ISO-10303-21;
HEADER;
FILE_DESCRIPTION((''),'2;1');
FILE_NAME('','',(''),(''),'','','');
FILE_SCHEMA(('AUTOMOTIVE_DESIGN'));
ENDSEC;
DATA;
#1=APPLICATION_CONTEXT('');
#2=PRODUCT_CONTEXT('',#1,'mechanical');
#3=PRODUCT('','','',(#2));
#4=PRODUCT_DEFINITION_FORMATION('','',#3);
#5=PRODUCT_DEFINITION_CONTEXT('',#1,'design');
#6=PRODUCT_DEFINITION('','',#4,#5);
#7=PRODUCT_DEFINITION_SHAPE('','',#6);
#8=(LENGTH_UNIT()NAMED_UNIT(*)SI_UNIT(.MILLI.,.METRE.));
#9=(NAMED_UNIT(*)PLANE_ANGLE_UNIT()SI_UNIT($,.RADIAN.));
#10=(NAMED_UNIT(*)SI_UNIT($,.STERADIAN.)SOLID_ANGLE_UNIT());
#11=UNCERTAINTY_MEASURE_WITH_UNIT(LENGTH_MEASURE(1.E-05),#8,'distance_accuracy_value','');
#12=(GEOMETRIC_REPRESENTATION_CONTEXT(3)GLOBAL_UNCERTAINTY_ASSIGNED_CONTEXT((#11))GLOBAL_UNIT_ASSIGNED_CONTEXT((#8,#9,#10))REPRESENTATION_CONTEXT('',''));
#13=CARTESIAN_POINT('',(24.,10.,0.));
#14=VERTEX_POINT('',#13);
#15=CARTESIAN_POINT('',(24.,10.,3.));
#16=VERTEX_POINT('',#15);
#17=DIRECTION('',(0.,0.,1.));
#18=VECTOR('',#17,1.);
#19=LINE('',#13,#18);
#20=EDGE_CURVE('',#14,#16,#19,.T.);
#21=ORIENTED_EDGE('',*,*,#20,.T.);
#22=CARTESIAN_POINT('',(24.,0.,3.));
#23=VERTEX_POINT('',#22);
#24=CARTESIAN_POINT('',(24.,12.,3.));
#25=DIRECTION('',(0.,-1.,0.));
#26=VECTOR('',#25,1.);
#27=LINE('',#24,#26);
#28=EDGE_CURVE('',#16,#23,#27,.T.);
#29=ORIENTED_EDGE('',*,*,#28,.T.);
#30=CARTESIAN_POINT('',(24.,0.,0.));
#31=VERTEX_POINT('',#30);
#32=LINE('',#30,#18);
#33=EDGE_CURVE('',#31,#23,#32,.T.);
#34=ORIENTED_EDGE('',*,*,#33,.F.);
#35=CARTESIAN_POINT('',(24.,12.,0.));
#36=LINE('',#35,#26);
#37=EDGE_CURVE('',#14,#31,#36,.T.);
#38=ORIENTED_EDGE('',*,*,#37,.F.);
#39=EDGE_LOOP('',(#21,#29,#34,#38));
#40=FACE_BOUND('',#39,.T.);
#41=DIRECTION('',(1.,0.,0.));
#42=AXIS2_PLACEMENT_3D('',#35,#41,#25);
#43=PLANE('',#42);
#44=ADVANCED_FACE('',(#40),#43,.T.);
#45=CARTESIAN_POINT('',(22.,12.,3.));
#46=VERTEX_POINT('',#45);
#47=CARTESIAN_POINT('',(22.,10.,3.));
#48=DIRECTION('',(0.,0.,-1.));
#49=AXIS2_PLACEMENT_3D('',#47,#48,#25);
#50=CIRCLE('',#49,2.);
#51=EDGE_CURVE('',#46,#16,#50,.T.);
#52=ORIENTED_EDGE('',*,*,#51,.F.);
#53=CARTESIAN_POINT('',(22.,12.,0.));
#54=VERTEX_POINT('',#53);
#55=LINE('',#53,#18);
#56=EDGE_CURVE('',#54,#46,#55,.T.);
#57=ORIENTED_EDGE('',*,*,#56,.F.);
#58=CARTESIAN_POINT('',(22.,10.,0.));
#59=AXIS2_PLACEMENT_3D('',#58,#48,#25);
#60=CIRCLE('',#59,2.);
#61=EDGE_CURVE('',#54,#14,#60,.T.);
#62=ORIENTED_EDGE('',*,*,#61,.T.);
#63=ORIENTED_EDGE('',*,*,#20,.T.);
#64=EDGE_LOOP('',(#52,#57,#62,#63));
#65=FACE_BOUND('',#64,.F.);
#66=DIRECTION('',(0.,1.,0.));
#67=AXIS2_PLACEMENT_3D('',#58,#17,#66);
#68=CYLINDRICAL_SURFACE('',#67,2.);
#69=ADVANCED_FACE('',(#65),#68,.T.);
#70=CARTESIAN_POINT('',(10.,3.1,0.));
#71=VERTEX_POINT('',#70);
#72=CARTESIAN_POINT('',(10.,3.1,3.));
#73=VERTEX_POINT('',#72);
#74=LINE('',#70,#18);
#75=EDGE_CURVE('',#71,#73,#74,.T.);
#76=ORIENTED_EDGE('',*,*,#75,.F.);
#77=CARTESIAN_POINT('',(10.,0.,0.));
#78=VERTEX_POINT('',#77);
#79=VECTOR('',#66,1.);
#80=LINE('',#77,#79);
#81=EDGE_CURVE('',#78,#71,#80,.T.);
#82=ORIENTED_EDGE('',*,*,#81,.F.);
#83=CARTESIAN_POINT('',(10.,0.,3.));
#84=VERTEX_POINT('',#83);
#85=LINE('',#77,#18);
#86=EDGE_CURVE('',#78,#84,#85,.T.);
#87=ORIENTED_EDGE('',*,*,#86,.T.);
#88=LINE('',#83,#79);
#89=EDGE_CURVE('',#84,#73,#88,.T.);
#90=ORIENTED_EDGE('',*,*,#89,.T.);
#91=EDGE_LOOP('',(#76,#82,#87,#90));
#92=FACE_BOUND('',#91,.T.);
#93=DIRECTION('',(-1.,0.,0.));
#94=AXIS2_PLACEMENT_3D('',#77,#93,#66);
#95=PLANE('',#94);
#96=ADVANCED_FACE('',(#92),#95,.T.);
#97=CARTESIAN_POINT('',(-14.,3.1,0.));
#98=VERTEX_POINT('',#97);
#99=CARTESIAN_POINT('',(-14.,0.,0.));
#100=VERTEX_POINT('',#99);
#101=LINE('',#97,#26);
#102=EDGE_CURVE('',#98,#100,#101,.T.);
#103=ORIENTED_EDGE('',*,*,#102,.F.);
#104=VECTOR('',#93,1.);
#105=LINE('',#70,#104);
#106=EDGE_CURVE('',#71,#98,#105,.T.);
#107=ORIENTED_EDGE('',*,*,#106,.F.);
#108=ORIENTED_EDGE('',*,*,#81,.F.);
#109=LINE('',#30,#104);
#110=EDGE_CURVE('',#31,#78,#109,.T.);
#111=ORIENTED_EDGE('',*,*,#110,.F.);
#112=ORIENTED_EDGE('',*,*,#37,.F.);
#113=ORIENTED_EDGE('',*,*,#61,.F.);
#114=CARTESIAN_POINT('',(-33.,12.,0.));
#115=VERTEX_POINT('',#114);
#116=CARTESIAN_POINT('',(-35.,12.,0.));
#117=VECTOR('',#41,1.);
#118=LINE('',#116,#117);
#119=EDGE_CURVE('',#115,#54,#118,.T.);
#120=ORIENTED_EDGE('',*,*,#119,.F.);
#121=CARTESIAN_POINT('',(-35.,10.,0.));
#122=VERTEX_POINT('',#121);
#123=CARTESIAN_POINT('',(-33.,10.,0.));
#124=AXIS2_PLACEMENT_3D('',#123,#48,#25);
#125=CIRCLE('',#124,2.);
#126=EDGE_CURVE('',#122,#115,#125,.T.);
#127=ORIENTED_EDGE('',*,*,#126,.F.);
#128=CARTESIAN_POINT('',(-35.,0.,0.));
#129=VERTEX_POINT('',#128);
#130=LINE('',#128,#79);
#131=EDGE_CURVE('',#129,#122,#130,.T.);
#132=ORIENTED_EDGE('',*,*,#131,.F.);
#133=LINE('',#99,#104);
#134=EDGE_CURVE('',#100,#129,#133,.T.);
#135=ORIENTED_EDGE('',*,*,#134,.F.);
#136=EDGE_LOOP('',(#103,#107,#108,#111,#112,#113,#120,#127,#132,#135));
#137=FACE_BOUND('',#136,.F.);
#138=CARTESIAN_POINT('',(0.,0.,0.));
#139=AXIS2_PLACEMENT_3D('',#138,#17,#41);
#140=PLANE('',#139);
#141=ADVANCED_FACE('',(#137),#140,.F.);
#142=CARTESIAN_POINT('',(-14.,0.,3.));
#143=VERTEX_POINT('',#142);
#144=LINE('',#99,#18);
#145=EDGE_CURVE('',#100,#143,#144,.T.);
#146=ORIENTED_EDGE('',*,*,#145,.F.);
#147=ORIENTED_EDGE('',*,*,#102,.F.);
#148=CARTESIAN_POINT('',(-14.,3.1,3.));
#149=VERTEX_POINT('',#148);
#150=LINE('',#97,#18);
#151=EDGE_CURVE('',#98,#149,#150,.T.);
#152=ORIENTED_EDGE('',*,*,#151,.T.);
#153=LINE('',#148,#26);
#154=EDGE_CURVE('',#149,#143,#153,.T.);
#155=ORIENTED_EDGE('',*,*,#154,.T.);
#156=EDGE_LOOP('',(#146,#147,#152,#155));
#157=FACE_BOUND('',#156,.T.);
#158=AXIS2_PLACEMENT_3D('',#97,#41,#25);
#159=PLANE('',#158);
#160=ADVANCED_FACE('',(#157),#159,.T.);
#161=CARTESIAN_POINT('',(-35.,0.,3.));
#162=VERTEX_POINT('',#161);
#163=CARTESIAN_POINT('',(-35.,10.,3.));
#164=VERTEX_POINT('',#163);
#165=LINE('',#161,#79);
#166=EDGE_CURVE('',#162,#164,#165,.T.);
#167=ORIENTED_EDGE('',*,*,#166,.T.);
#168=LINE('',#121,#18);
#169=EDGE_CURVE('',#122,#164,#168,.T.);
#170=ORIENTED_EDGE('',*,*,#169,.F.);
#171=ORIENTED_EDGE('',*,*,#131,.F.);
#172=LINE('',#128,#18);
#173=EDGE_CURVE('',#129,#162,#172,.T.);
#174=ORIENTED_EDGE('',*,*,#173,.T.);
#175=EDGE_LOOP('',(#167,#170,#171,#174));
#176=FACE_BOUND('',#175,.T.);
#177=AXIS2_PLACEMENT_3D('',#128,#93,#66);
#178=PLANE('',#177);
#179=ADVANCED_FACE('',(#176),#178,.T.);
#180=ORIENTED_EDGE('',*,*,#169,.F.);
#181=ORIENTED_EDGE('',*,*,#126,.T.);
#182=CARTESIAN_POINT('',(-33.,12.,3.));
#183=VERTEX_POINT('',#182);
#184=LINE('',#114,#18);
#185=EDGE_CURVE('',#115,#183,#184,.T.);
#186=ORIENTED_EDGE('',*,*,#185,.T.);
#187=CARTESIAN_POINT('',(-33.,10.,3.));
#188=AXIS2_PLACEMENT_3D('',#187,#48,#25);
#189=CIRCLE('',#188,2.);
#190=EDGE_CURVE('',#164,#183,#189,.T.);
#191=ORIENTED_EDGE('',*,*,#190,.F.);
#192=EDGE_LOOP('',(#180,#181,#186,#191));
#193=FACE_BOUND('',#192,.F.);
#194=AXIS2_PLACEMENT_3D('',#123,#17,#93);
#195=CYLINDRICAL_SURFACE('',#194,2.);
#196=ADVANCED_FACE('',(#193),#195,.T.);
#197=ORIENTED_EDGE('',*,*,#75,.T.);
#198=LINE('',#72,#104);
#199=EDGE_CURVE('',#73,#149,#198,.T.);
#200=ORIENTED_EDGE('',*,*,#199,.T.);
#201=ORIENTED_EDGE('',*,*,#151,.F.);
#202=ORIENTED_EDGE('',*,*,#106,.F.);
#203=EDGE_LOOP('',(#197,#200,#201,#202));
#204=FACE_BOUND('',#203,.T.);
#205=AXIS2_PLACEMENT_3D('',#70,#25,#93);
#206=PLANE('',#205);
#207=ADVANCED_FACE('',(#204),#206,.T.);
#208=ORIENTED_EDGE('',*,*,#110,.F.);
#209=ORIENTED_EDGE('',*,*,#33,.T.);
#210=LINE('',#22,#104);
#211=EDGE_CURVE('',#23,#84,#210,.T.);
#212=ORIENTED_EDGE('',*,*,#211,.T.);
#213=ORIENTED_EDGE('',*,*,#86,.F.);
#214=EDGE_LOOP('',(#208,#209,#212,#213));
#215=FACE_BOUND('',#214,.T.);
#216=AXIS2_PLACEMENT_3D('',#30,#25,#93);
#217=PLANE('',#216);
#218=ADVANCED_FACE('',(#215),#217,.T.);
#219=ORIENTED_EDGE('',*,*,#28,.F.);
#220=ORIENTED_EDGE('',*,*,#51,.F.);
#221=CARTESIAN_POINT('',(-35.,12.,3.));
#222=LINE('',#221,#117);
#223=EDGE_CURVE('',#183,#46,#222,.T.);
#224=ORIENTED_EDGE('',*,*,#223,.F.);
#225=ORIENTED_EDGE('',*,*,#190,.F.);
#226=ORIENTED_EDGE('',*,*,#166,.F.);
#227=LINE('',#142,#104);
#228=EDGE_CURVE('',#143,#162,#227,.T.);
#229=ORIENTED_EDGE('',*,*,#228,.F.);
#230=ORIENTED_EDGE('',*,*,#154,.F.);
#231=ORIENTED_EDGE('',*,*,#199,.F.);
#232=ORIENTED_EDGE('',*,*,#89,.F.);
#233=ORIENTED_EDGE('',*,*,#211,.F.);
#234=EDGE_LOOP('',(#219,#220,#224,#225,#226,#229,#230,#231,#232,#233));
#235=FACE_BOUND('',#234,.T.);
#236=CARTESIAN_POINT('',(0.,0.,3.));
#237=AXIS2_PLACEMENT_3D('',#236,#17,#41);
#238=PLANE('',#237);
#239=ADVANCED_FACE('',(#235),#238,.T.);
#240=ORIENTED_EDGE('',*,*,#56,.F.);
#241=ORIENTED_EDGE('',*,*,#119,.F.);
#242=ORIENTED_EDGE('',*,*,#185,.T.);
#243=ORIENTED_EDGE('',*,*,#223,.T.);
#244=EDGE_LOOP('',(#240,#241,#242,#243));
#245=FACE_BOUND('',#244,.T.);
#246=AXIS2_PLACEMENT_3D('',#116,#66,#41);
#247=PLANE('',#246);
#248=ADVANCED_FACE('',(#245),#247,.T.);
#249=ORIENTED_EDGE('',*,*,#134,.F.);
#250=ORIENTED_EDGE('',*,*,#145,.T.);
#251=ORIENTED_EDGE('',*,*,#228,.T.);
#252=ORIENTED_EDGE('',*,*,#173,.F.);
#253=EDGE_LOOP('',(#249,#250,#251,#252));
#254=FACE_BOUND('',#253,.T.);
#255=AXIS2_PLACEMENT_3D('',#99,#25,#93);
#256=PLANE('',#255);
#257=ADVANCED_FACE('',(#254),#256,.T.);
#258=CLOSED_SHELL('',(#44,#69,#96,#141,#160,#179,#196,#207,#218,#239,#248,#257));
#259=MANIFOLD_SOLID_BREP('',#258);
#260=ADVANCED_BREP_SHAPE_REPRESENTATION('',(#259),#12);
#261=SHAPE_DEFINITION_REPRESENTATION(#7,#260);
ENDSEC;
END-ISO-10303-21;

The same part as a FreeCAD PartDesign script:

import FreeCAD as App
import Part
import Sketcher

V = App.Vector
Q = App.Units.Quantity


def edges_at(feature, points):
    """Names of the edges that pass closest to the given points."""
    edges = feature.Shape.Edges
    near = lambda p: min(range(len(edges)), key=lambda i: edges[i].distToShape(Part.Vertex(*p))[0])
    return sorted({f"Edge{near(p) + 1}" for p in points})


def add_polygon(sketch, points):
    """Adds a closed chain of lines whose ends are joined by coincident constraints."""
    first, n = sketch.GeometryCount, len(points)
    for a, b in zip(points, points[1:] + points[:1]):
        sketch.addGeometry(Part.LineSegment(App.Vector(*a, 0), App.Vector(*b, 0)), False)
    for i in range(n):
        sketch.addConstraint(Sketcher.Constraint("Coincident", first + i, 2, first + (i + 1) % n, 1))

doc = App.newDocument("Part")
body = doc.addObject("PartDesign::Body", "Body")

sketch1 = body.newObject("Sketcher::SketchObject", "Sketch")
sketch1.AttachmentSupport = (doc.getObject("XY_Plane"), [""])
sketch1.MapMode = "FlatFace"
add_polygon(sketch1, [(-35, 12), (-35, 0), (-14, 0), (-14, 3.1), (10, 3.1), (10, 0), (24, 0), (24, 12)])
sketch1.addConstraint([
    Sketcher.Constraint("Vertical", 0),
    Sketcher.Constraint("Horizontal", 1),
    Sketcher.Constraint("Vertical", 2),
    Sketcher.Constraint("Horizontal", 3),
    Sketcher.Constraint("Vertical", 4),
    Sketcher.Constraint("Horizontal", 5),
    Sketcher.Constraint("Vertical", 6),
    Sketcher.Constraint("Horizontal", 7),
    Sketcher.Constraint("PointOnObject", 0, 2, -1),
    Sketcher.Constraint("PointOnObject", 4, 2, -1),
    Sketcher.Constraint("DistanceX", 3, 1, 3, 2, Q("24 mm")),
    Sketcher.Constraint("DistanceY", 0, 2, 0, 1, Q("12 mm")),
    Sketcher.Constraint("DistanceY", 2, 1, 2, 2, Q("3.1 mm")),
    Sketcher.Constraint("DistanceX", 0, 2, -1, 1, Q("35 mm")),
    Sketcher.Constraint("DistanceX", -1, 1, 3, 2, Q("10 mm")),
    Sketcher.Constraint("DistanceX", -1, 1, 5, 2, Q("24 mm")),
])
pad1 = body.newObject("PartDesign::Pad", "Pad")
pad1.Profile = sketch1
pad1.Length = 3
doc.recompute()

fillet = body.newObject("PartDesign::Fillet", "Fillet")
fillet.Base = (pad1, edges_at(pad1, [(-35, 12, 1.5), (24, 12, 1.5)]))
fillet.Radius = 2

doc.recompute()
